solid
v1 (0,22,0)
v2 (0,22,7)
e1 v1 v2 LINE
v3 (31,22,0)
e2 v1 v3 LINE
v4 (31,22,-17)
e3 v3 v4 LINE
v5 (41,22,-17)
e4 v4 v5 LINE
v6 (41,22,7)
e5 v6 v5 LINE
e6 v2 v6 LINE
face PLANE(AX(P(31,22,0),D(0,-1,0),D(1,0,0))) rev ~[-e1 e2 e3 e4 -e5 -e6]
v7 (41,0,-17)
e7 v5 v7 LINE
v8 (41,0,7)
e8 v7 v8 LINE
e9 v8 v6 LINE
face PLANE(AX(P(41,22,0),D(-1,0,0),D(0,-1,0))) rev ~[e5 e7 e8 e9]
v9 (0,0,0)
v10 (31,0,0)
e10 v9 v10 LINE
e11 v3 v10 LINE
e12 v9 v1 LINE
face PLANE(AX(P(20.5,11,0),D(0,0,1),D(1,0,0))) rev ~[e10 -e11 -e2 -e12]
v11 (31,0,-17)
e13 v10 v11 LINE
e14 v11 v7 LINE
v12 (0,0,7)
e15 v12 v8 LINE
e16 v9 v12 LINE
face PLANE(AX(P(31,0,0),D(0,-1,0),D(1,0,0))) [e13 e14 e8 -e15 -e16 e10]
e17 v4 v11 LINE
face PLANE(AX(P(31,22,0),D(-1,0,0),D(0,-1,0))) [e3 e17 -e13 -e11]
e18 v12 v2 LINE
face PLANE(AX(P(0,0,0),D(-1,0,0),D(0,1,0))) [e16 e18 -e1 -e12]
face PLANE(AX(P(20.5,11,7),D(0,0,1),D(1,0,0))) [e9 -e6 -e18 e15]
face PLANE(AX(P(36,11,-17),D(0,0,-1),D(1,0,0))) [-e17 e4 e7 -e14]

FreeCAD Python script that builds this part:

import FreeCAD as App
import Part
import Sketcher
Q = App.Units.Quantity


def add_polygon(sketch, points):
    """Adds a closed chain of lines whose ends are joined by coincident constraints."""
    first, n = sketch.GeometryCount, len(points)
    for a, b in zip(points, points[1:] + points[:1]):
        sketch.addGeometry(Part.LineSegment(App.Vector(*a, 0), App.Vector(*b, 0)), False)
    for i in range(n):
        sketch.addConstraint(Sketcher.Constraint("Coincident", first + i, 2, first + (i + 1) % n, 1))

doc = App.newDocument("Part")
body = doc.addObject("PartDesign::Body", "Body")

# Sketch on XY plane
sketch1 = body.newObject("Sketcher::SketchObject", "Sketch")
sketch1.AttachmentSupport = (doc.getObject("XY_Plane"), [""])
sketch1.MapMode = "FlatFace"
add_polygon(sketch1, [(0, 22), (0, 0), (41, 0), (41, 22)])  # lines 0-3
sketch1.addConstraint(Sketcher.Constraint("Vertical", 0))
sketch1.addConstraint(Sketcher.Constraint("Horizontal", 1))
sketch1.addConstraint(Sketcher.Constraint("Vertical", 2))
sketch1.addConstraint(Sketcher.Constraint("Horizontal", 3))
sketch1.addConstraint(Sketcher.Constraint("Coincident", 0, 2, -1, 1))
sketch1.addConstraint(Sketcher.Constraint("DistanceX", 1, 1, 1, 2, Q("41 mm")))
sketch1.addConstraint(Sketcher.Constraint("DistanceY", 0, 2, 0, 1, Q("22 mm")))
pad1 = body.newObject("PartDesign::Pad", "Pad")
pad1.Profile = sketch1
pad1.Length = 7

# Sketch on XY plane
sketch2 = body.newObject("Sketcher::SketchObject", "Sketch001")
sketch2.AttachmentSupport = (doc.getObject("XY_Plane"), [""])
sketch2.MapMode = "FlatFace"
add_polygon(sketch2, [(31, 0), (31, 22), (41, 22), (41, 0)])  # lines 0-3
sketch2.addConstraint(Sketcher.Constraint("Vertical", 0))
sketch2.addConstraint(Sketcher.Constraint("Horizontal", 1))
sketch2.addConstraint(Sketcher.Constraint("Vertical", 2))
sketch2.addConstraint(Sketcher.Constraint("Horizontal", 3))
sketch2.addConstraint(Sketcher.Constraint("PointOnObject", 2, 2, -1))
sketch2.addConstraint(Sketcher.Constraint("DistanceX", 1, 1, 1, 2, Q("10 mm")))
sketch2.addConstraint(Sketcher.Constraint("DistanceY", 0, 1, 0, 2, Q("22 mm")))
sketch2.addConstraint(Sketcher.Constraint("DistanceX", -1, 1, 0, 2, Q("31 mm")))
pad2 = body.newObject("PartDesign::Pad", "Pad001")
pad2.Profile = sketch2
pad2.Length = 17
pad2.Reversed = True

doc.recompute()
